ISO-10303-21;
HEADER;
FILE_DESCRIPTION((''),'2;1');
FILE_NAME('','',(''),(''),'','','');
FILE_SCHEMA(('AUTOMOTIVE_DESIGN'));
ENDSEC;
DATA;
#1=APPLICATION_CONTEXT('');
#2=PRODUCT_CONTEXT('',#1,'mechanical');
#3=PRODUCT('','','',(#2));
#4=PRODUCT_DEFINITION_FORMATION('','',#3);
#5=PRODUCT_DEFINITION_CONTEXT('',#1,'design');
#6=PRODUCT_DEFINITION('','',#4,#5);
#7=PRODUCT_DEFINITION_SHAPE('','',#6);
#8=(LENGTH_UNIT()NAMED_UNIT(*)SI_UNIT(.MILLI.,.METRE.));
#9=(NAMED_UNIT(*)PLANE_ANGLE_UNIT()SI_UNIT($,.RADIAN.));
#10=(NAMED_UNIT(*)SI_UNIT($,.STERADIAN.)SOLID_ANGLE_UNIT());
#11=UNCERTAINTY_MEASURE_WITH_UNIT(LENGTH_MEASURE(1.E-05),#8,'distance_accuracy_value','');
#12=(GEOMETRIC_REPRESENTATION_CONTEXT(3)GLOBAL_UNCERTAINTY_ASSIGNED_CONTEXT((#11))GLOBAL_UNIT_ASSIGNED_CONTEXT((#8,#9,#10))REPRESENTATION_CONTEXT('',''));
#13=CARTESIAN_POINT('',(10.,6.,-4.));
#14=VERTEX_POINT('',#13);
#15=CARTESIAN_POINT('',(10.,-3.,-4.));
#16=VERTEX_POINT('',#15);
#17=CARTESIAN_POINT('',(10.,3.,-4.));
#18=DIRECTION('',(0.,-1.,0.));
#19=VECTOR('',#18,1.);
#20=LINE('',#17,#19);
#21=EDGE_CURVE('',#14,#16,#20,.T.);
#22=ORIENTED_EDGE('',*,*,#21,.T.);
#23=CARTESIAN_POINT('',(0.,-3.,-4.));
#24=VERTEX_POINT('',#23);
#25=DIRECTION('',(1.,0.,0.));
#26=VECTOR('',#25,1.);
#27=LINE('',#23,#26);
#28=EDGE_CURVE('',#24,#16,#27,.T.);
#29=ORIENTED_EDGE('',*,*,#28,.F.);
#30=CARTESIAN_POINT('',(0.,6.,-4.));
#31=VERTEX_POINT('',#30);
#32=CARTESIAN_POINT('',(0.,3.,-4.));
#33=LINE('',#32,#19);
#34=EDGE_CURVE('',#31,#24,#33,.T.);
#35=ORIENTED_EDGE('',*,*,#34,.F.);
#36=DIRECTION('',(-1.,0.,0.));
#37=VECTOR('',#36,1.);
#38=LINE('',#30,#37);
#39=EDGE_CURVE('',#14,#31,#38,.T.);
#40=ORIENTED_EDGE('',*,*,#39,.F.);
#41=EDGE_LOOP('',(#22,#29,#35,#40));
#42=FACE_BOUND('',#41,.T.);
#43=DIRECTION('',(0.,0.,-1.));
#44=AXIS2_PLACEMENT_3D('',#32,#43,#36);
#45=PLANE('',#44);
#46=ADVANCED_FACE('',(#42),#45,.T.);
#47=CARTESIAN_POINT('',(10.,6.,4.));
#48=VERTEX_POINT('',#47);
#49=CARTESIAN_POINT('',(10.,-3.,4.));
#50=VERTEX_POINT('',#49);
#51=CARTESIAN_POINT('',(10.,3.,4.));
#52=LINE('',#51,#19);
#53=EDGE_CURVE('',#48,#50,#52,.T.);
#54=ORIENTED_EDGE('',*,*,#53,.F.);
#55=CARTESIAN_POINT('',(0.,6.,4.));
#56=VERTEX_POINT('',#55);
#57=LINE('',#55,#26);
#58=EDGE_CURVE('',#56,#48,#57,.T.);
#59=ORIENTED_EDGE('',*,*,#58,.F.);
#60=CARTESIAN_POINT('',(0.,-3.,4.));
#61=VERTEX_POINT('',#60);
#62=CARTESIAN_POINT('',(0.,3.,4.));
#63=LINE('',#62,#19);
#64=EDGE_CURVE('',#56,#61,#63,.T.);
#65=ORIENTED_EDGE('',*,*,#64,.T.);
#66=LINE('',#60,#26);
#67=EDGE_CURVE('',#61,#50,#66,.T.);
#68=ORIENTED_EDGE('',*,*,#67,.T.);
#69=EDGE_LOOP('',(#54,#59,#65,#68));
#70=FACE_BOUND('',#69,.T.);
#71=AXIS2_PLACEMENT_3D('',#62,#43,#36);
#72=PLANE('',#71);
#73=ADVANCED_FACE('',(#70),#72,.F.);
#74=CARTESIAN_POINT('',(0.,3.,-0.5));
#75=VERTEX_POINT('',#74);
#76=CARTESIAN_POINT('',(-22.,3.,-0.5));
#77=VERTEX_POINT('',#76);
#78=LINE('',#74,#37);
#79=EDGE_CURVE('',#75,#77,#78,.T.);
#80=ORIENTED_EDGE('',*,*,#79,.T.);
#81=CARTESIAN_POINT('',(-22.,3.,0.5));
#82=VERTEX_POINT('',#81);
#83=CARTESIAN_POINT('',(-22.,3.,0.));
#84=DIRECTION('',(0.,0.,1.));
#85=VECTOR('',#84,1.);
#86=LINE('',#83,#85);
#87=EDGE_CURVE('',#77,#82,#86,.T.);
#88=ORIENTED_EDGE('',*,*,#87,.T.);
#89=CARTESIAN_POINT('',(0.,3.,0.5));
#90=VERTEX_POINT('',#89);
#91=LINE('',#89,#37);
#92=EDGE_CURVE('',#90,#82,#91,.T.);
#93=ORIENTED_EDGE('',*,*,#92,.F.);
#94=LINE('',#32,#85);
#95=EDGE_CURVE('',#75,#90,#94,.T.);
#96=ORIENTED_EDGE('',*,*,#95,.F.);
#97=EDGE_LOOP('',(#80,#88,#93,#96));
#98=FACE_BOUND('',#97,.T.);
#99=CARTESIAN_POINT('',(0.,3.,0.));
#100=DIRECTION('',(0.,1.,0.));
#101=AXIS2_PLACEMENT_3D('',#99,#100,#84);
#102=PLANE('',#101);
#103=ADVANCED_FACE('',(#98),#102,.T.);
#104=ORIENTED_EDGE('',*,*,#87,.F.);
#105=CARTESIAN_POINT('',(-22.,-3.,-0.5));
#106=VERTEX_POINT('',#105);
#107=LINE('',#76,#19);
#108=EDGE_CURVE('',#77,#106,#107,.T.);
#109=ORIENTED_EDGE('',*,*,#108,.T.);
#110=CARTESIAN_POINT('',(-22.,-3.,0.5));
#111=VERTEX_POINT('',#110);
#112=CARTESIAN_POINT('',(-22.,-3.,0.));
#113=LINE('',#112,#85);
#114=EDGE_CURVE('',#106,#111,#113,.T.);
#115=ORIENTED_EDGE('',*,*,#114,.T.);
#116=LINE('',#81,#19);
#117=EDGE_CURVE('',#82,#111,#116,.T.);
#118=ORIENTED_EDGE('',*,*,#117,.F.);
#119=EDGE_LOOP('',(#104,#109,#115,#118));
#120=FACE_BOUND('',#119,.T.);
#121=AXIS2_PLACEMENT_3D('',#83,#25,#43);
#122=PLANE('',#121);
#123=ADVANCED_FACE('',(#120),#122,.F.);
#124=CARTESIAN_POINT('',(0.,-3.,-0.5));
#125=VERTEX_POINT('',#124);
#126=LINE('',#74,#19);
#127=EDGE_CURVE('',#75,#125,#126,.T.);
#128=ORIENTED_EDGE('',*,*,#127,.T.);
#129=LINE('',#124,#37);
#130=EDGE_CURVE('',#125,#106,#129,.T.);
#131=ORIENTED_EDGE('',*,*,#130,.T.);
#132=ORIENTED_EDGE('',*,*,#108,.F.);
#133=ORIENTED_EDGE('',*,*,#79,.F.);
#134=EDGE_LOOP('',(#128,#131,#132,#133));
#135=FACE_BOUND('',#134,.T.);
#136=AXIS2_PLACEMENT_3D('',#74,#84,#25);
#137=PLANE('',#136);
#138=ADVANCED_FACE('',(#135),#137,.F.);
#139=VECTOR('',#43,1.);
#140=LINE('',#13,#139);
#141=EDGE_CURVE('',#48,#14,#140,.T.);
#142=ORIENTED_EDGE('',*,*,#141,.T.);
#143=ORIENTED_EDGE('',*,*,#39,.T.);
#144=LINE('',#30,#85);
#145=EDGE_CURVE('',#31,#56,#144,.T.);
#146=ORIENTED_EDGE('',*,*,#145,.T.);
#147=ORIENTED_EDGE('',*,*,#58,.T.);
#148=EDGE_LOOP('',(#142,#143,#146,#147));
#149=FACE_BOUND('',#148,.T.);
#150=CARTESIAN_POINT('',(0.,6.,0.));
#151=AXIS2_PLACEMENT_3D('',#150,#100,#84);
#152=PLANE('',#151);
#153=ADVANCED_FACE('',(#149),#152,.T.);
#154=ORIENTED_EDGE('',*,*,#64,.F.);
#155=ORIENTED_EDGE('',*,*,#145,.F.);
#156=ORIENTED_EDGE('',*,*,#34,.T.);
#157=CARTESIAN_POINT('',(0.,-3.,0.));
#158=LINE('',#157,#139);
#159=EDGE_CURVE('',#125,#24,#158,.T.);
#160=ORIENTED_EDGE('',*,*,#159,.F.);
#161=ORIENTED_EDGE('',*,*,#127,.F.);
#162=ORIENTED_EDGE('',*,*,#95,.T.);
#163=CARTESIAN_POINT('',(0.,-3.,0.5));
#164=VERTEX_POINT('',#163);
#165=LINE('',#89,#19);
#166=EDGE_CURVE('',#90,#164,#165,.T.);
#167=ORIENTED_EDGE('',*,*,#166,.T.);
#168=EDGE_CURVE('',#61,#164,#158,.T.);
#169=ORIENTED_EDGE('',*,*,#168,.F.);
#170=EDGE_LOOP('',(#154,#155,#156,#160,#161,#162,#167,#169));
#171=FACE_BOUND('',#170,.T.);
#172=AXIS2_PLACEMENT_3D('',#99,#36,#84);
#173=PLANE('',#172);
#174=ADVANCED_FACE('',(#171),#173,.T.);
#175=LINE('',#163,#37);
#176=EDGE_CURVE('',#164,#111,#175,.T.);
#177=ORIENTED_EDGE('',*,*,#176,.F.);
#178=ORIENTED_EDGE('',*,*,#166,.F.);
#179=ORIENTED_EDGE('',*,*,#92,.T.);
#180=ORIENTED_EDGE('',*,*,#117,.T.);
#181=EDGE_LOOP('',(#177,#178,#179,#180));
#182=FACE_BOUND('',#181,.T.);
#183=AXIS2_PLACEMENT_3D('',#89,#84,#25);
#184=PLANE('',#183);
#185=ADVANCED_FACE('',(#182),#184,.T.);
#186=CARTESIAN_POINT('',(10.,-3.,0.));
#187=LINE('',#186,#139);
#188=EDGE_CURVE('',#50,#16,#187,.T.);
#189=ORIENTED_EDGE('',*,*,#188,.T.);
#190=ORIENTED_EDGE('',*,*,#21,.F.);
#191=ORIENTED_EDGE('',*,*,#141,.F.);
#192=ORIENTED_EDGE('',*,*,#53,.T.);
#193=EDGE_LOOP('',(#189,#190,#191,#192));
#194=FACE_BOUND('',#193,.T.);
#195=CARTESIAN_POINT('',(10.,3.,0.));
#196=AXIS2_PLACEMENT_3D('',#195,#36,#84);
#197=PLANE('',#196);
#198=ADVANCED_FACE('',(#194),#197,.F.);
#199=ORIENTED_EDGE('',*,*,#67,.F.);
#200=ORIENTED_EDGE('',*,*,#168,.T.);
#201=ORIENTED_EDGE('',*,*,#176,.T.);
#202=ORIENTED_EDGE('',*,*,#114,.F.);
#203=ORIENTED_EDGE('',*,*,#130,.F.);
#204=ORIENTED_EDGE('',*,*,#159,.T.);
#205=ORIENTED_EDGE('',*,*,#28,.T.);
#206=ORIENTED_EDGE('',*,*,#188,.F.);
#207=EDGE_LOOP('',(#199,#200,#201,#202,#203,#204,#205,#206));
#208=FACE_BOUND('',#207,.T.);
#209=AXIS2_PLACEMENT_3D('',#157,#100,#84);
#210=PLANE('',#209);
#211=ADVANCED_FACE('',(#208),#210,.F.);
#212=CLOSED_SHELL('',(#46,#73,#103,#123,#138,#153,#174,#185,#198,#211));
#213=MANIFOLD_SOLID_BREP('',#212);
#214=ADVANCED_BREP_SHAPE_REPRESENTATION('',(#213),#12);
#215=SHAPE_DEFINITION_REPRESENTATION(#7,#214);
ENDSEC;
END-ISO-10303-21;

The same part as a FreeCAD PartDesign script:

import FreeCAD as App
import Part
import Sketcher

V = App.Vector


def add_polygon(sketch, points):
    """Adds a closed chain of lines whose ends are joined by coincident constraints."""
    first, n = sketch.GeometryCount, len(points)
    for a, b in zip(points, points[1:] + points[:1]):
        sketch.addGeometry(Part.LineSegment(App.Vector(*a, 0), App.Vector(*b, 0)), False)
    for i in range(n):
        sketch.addConstraint(Sketcher.Constraint("Coincident", first + i, 2, first + (i + 1) % n, 1))

doc = App.newDocument("Part")
params = doc.addObject("Spreadsheet::Sheet", "Params")
for row, (alias, value) in enumerate([
    ("sketch1_width", "10 mm"),
    ("sketch1_width2", "22 mm"),
    ("sketch1_height", "8 mm"),
    ("sketch1_height2", "1 mm"),
    ("pad1_length", "6 mm"),
    ("sketch2_width", "10 mm"),
    ("sketch2_height", "8 mm"),
    ("pad2_length", "3 mm"),
], start=1):
    params.set(f"A{row}", alias)
    params.set(f"B{row}", "=" + value)
    params.setAlias(f"B{row}", alias)

body = doc.addObject("PartDesign::Body", "Body")

sketch1 = body.newObject("Sketcher::SketchObject", "Sketch")
sketch1.AttachmentSupport = (doc.getObject("XZ_Plane"), [""])
sketch1.MapMode = "FlatFace"
add_polygon(sketch1, [(0, 0.5), (0, 4), (10, 4), (10, -4), (0, -4), (0, -0.5), (-22, -0.5), (-22, 0.5)])
sketch1.addConstraint([
    Sketcher.Constraint("Vertical", 0),
    Sketcher.Constraint("Horizontal", 1),
    Sketcher.Constraint("Vertical", 2),
    Sketcher.Constraint("Horizontal", 3),
    Sketcher.Constraint("Vertical", 4),
    Sketcher.Constraint("Horizontal", 5),
    Sketcher.Constraint("Vertical", 6),
    Sketcher.Constraint("Horizontal", 7),
    Sketcher.Constraint("Symmetric", 0, 2, 3, 2, -1, 1),
    Sketcher.Constraint("Symmetric", 4, 2, 7, 2, -1),
    Sketcher.Constraint("DistanceX", 1, 1, 1, 2, 10.0),
    Sketcher.Constraint("DistanceX", 5, 2, 5, 1, 22.0),
    Sketcher.Constraint("DistanceY", 2, 2, 2, 1, 8.0),
    Sketcher.Constraint("DistanceY", 6, 1, 6, 2, 1.0),
])
sketch1.setExpression("Constraints[18]", "Params.sketch1_width")
sketch1.setExpression("Constraints[19]", "Params.sketch1_width2")
sketch1.setExpression("Constraints[20]", "Params.sketch1_height")
sketch1.setExpression("Constraints[21]", "Params.sketch1_height2")
pad1 = body.newObject("PartDesign::Pad", "Pad")
pad1.Profile = sketch1
pad1.setExpression("Length", "Params.pad1_length")
pad1.Midplane = True

sketch2 = body.newObject("Sketcher::SketchObject", "Sketch001")
sketch2.AttachmentSupport = (doc.getObject("XZ_Plane"), [""])
sketch2.MapMode = "FlatFace"
sketch2.AttachmentOffset = App.Placement(V(0, 0, -3), App.Rotation())
add_polygon(sketch2, [(0, -4), (0, 4), (10, 4), (10, -4)])
sketch2.addConstraint([
    Sketcher.Constraint("Vertical", 0),
    Sketcher.Constraint("Horizontal", 1),
    Sketcher.Constraint("Vertical", 2),
    Sketcher.Constraint("Horizontal", 3),
    Sketcher.Constraint("Symmetric", 0, 2, 3, 2, -1, 1),
    Sketcher.Constraint("DistanceX", 1, 1, 1, 2, 10.0),
    Sketcher.Constraint("DistanceY", 0, 1, 0, 2, 8.0),
])
sketch2.setExpression("Constraints[9]", "Params.sketch2_width")
sketch2.setExpression("Constraints[10]", "Params.sketch2_height")
pad2 = body.newObject("PartDesign::Pad", "Pad001")
pad2.Profile = sketch2
pad2.setExpression("Length", "Params.pad2_length")
pad2.Reversed = True

doc.recompute()
